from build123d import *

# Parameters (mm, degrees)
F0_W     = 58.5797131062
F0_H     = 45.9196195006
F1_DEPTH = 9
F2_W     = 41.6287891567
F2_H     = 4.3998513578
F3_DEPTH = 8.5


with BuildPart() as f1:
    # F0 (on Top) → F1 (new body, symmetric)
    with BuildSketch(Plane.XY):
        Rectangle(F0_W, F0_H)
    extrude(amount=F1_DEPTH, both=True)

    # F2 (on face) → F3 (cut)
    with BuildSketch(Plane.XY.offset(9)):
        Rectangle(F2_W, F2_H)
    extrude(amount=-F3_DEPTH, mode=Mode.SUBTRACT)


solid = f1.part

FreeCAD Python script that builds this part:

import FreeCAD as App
import Part
import Sketcher
from FreeCAD import Vector


def add_polygon(sketch, points):
    """Adds a closed chain of lines whose ends are joined by coincident constraints."""
    first, n = sketch.GeometryCount, len(points)
    for a, b in zip(points, points[1:] + points[:1]):
        sketch.addGeometry(Part.LineSegment(App.Vector(*a, 0), App.Vector(*b, 0)), False)
    for i in range(n):
        sketch.addConstraint(Sketcher.Constraint("Coincident", first + i, 2, first + (i + 1) % n, 1))

doc = App.newDocument("Part")
params = doc.addObject("Spreadsheet::Sheet", "Params")
for row, (alias, value) in enumerate([
    ("pad1_length", "18 mm"),
    ("pocket1_length", "8.5 mm"),
], start=1):
    params.set(f"A{row}", alias)
    params.set(f"B{row}", "=" + value)
    params.setAlias(f"B{row}", alias)

body = doc.addObject("PartDesign::Body", "Body")

sketch1 = body.newObject("Sketcher::SketchObject", "Sketch")
sketch1.AttachmentSupport = (doc.getObject("XY_Plane"), [""])
sketch1.MapMode = "FlatFace"
add_polygon(sketch1, [(-29, 23), (-29, -23), (29, -23), (29, 23)])
sketch1.addConstraint([
    Sketcher.Constraint("Vertical", 0),
    Sketcher.Constraint("Horizontal", 1),
    Sketcher.Constraint("Vertical", 2),
    Sketcher.Constraint("Horizontal", 3),
    Sketcher.Constraint("Symmetric", 0, 2, 2, 2, -1, 1),
    Sketcher.Constraint("DistanceY", 0, 2, 0, 1, 45.91962),
    Sketcher.Constraint("DistanceX", 1, 1, 1, 2, 58.579713),
])
pad1 = body.newObject("PartDesign::Pad", "Pad")
pad1.Profile = sketch1
pad1.setExpression("Length", "Params.pad1_length")
pad1.Midplane = True

sketch2 = body.newObject("Sketcher::SketchObject", "Sketch001")
sketch2.AttachmentSupport = (doc.getObject("XY_Plane"), [""])
sketch2.MapMode = "FlatFace"
sketch2.AttachmentOffset = App.Placement(Vector(0, 0, 9), App.Rotation())
add_polygon(sketch2, [(-20.8, 2.2), (-20.8, -2.2), (20.8, -2.2), (20.8, 2.2)])
sketch2.addConstraint([
    Sketcher.Constraint("Vertical", 0),
    Sketcher.Constraint("Horizontal", 1),
    Sketcher.Constraint("Vertical", 2),
    Sketcher.Constraint("Horizontal", 3),
    Sketcher.Constraint("Symmetric", 0, 2, 2, 2, -1, 1),
    Sketcher.Constraint("DistanceX", 1, 1, 1, 2, 41.628789),
    Sketcher.Constraint("DistanceY", 0, 2, 0, 1, 4.399851),
])
pocket1 = body.newObject("PartDesign::Pocket", "Pocket")
pocket1.Profile = sketch2
pocket1.setExpression("Length", "Params.pocket1_length")

doc.recompute()
